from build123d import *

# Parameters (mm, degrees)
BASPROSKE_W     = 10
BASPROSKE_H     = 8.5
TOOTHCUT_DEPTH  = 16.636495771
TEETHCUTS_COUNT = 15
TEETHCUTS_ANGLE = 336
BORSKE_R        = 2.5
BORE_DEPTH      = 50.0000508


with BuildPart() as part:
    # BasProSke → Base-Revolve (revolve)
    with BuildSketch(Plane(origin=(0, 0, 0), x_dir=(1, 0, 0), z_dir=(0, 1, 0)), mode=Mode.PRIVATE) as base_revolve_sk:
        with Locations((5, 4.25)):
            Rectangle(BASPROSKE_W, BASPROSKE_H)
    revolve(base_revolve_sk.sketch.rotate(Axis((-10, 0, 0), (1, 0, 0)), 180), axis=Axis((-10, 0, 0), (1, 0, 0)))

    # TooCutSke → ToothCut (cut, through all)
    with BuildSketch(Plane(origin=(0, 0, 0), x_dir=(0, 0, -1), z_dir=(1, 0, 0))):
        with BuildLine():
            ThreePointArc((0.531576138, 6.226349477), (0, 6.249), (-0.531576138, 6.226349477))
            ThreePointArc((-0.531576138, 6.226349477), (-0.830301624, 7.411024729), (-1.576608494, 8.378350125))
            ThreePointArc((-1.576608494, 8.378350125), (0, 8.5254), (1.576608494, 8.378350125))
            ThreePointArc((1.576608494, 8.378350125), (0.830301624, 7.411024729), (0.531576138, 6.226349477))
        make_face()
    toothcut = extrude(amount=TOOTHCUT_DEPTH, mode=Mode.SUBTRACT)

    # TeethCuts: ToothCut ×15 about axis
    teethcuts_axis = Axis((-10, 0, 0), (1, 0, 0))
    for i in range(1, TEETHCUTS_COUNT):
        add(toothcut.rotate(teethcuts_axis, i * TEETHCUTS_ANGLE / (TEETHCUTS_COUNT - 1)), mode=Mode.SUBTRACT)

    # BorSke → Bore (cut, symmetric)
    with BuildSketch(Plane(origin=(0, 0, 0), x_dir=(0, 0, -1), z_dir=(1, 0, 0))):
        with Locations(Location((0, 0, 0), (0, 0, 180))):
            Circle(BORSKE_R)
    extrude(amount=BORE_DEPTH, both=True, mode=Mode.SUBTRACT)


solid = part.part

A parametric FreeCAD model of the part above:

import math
import FreeCAD as App
import Part
import Sketcher

V = App.Vector
Q = App.Units.Quantity

doc = App.newDocument("Part")
body = doc.addObject("PartDesign::Body", "Body")

# Sketch on XZ plane
sketch1 = body.newObject("Sketcher::SketchObject", "Sketch")
sketch1.AttachmentSupport = (doc.getObject("XZ_Plane"), [""])
sketch1.MapMode = "FlatFace"
sketch1.addGeometry([
    Part.LineSegment(V(0, -8, 0), V(0, 0, 0)),
    Part.LineSegment(V(0, 0, 0), V(10, 0, 0)),
    Part.LineSegment(V(10, 0, 0), V(10, -8, 0)),
    Part.LineSegment(V(10, -8, 0), V(0, -8, 0)),
], False)
sketch1.addConstraint([
    Sketcher.Constraint("Coincident", 0, 2, 1, 1),
    Sketcher.Constraint("Coincident", 1, 2, 2, 1),
    Sketcher.Constraint("Coincident", 2, 2, 3, 1),
    Sketcher.Constraint("Coincident", 3, 2, 0, 1),
    Sketcher.Constraint("Vertical", 0),
    Sketcher.Constraint("Horizontal", 1),
    Sketcher.Constraint("Vertical", 2),
    Sketcher.Constraint("Horizontal", 3),
    Sketcher.Constraint("Coincident", 0, 2, -1, 1),
    Sketcher.Constraint("DistanceX", 1, 1, 1, 2, Q("10 mm")),
    Sketcher.Constraint("DistanceY", 0, 1, 0, 2, Q("8.5 mm")),
])
revolution = body.newObject("PartDesign::Revolution", "Revolution")
revolution.Profile = sketch1
revolution.ReferenceAxis = (sketch1, ["H_Axis"])
revolution.Angle = 360

# Sketch on YZ plane
sketch2 = body.newObject("Sketcher::SketchObject", "Sketch001")
sketch2.AttachmentSupport = (doc.getObject("YZ_Plane"), [""])
sketch2.MapMode = "FlatFace"
sketch2.addGeometry([
    Part.ArcOfCircle(Part.Circle(V(0, 0, 0), V(0, 0, 1), 6.2), math.radians(-4.88), math.radians(4.88)),
    Part.ArcOfCircle(Part.Circle(V(6.1, -3.5, 0), V(0, 0, 1), 3), math.radians(41), math.radians(88)),
    Part.ArcOfCircle(Part.Circle(V(0, 0, 0), V(0, 0, 1), 8.5), math.radians(-11), math.radians(11)),
    Part.ArcOfCircle(Part.Circle(V(6.1, 3.5, 0), V(0, 0, 1), 3), math.radians(-88), math.radians(-41)),
], False)
sketch2.addConstraint([
    Sketcher.Constraint("Coincident", 0, 1, 1, 2),
    Sketcher.Constraint("Coincident", 1, 1, 2, 1),
    Sketcher.Constraint("Coincident", 2, 2, 3, 2),
    Sketcher.Constraint("Coincident", 3, 1, 0, 2),
    Sketcher.Constraint("Coincident", 0, 3, -1, 1),
    Sketcher.Constraint("Coincident", 2, 3, -1, 1),
    Sketcher.Constraint("Equal", 1, 3),
    Sketcher.Constraint("Symmetric", 1, 3, 3, 3, -1),
    Sketcher.Constraint("Radius", 1, Q("3 mm")),
    Sketcher.Constraint("Radius", 0, Q("6.249 mm")),
    Sketcher.Constraint("Radius", 2, Q("8.5254 mm")),
    Sketcher.Constraint("DistanceX", 0, 1, 1, 1, Q("2.152001 mm")),
    Sketcher.Constraint("DistanceX", -1, 1, 1, 3, Q("6.100541 mm")),
])
pocket1 = body.newObject("PartDesign::Pocket", "Pocket")
pocket1.Profile = sketch2
pocket1.Type = "ThroughAll"
pocket1.Reversed = True
doc.recompute()

polarpattern = body.newObject("PartDesign::PolarPattern", "PolarPattern")
polarpattern.Originals = [pocket1]
polarpattern.Axis = (doc.getObject("X_Axis"), [""])
polarpattern.Angle = 360
polarpattern.Occurrences = 15
body.Tip = polarpattern

# Sketch on YZ plane
sketch3 = body.newObject("Sketcher::SketchObject", "Sketch002")
sketch3.AttachmentSupport = (doc.getObject("YZ_Plane"), [""])
sketch3.MapMode = "FlatFace"
sketch3.addGeometry(Part.Circle(V(0, 0, 0), V(0, 0, 1), 2.5), False)
sketch3.addConstraint([
    Sketcher.Constraint("Coincident", 0, 3, -1, 1),
    Sketcher.Constraint("Diameter", 0, Q("5 mm")),
])
pocket2 = body.newObject("PartDesign::Pocket", "Pocket001")
pocket2.Profile = sketch3
pocket2.Length = 100.000102
pocket2.Midplane = True

doc.recompute()
